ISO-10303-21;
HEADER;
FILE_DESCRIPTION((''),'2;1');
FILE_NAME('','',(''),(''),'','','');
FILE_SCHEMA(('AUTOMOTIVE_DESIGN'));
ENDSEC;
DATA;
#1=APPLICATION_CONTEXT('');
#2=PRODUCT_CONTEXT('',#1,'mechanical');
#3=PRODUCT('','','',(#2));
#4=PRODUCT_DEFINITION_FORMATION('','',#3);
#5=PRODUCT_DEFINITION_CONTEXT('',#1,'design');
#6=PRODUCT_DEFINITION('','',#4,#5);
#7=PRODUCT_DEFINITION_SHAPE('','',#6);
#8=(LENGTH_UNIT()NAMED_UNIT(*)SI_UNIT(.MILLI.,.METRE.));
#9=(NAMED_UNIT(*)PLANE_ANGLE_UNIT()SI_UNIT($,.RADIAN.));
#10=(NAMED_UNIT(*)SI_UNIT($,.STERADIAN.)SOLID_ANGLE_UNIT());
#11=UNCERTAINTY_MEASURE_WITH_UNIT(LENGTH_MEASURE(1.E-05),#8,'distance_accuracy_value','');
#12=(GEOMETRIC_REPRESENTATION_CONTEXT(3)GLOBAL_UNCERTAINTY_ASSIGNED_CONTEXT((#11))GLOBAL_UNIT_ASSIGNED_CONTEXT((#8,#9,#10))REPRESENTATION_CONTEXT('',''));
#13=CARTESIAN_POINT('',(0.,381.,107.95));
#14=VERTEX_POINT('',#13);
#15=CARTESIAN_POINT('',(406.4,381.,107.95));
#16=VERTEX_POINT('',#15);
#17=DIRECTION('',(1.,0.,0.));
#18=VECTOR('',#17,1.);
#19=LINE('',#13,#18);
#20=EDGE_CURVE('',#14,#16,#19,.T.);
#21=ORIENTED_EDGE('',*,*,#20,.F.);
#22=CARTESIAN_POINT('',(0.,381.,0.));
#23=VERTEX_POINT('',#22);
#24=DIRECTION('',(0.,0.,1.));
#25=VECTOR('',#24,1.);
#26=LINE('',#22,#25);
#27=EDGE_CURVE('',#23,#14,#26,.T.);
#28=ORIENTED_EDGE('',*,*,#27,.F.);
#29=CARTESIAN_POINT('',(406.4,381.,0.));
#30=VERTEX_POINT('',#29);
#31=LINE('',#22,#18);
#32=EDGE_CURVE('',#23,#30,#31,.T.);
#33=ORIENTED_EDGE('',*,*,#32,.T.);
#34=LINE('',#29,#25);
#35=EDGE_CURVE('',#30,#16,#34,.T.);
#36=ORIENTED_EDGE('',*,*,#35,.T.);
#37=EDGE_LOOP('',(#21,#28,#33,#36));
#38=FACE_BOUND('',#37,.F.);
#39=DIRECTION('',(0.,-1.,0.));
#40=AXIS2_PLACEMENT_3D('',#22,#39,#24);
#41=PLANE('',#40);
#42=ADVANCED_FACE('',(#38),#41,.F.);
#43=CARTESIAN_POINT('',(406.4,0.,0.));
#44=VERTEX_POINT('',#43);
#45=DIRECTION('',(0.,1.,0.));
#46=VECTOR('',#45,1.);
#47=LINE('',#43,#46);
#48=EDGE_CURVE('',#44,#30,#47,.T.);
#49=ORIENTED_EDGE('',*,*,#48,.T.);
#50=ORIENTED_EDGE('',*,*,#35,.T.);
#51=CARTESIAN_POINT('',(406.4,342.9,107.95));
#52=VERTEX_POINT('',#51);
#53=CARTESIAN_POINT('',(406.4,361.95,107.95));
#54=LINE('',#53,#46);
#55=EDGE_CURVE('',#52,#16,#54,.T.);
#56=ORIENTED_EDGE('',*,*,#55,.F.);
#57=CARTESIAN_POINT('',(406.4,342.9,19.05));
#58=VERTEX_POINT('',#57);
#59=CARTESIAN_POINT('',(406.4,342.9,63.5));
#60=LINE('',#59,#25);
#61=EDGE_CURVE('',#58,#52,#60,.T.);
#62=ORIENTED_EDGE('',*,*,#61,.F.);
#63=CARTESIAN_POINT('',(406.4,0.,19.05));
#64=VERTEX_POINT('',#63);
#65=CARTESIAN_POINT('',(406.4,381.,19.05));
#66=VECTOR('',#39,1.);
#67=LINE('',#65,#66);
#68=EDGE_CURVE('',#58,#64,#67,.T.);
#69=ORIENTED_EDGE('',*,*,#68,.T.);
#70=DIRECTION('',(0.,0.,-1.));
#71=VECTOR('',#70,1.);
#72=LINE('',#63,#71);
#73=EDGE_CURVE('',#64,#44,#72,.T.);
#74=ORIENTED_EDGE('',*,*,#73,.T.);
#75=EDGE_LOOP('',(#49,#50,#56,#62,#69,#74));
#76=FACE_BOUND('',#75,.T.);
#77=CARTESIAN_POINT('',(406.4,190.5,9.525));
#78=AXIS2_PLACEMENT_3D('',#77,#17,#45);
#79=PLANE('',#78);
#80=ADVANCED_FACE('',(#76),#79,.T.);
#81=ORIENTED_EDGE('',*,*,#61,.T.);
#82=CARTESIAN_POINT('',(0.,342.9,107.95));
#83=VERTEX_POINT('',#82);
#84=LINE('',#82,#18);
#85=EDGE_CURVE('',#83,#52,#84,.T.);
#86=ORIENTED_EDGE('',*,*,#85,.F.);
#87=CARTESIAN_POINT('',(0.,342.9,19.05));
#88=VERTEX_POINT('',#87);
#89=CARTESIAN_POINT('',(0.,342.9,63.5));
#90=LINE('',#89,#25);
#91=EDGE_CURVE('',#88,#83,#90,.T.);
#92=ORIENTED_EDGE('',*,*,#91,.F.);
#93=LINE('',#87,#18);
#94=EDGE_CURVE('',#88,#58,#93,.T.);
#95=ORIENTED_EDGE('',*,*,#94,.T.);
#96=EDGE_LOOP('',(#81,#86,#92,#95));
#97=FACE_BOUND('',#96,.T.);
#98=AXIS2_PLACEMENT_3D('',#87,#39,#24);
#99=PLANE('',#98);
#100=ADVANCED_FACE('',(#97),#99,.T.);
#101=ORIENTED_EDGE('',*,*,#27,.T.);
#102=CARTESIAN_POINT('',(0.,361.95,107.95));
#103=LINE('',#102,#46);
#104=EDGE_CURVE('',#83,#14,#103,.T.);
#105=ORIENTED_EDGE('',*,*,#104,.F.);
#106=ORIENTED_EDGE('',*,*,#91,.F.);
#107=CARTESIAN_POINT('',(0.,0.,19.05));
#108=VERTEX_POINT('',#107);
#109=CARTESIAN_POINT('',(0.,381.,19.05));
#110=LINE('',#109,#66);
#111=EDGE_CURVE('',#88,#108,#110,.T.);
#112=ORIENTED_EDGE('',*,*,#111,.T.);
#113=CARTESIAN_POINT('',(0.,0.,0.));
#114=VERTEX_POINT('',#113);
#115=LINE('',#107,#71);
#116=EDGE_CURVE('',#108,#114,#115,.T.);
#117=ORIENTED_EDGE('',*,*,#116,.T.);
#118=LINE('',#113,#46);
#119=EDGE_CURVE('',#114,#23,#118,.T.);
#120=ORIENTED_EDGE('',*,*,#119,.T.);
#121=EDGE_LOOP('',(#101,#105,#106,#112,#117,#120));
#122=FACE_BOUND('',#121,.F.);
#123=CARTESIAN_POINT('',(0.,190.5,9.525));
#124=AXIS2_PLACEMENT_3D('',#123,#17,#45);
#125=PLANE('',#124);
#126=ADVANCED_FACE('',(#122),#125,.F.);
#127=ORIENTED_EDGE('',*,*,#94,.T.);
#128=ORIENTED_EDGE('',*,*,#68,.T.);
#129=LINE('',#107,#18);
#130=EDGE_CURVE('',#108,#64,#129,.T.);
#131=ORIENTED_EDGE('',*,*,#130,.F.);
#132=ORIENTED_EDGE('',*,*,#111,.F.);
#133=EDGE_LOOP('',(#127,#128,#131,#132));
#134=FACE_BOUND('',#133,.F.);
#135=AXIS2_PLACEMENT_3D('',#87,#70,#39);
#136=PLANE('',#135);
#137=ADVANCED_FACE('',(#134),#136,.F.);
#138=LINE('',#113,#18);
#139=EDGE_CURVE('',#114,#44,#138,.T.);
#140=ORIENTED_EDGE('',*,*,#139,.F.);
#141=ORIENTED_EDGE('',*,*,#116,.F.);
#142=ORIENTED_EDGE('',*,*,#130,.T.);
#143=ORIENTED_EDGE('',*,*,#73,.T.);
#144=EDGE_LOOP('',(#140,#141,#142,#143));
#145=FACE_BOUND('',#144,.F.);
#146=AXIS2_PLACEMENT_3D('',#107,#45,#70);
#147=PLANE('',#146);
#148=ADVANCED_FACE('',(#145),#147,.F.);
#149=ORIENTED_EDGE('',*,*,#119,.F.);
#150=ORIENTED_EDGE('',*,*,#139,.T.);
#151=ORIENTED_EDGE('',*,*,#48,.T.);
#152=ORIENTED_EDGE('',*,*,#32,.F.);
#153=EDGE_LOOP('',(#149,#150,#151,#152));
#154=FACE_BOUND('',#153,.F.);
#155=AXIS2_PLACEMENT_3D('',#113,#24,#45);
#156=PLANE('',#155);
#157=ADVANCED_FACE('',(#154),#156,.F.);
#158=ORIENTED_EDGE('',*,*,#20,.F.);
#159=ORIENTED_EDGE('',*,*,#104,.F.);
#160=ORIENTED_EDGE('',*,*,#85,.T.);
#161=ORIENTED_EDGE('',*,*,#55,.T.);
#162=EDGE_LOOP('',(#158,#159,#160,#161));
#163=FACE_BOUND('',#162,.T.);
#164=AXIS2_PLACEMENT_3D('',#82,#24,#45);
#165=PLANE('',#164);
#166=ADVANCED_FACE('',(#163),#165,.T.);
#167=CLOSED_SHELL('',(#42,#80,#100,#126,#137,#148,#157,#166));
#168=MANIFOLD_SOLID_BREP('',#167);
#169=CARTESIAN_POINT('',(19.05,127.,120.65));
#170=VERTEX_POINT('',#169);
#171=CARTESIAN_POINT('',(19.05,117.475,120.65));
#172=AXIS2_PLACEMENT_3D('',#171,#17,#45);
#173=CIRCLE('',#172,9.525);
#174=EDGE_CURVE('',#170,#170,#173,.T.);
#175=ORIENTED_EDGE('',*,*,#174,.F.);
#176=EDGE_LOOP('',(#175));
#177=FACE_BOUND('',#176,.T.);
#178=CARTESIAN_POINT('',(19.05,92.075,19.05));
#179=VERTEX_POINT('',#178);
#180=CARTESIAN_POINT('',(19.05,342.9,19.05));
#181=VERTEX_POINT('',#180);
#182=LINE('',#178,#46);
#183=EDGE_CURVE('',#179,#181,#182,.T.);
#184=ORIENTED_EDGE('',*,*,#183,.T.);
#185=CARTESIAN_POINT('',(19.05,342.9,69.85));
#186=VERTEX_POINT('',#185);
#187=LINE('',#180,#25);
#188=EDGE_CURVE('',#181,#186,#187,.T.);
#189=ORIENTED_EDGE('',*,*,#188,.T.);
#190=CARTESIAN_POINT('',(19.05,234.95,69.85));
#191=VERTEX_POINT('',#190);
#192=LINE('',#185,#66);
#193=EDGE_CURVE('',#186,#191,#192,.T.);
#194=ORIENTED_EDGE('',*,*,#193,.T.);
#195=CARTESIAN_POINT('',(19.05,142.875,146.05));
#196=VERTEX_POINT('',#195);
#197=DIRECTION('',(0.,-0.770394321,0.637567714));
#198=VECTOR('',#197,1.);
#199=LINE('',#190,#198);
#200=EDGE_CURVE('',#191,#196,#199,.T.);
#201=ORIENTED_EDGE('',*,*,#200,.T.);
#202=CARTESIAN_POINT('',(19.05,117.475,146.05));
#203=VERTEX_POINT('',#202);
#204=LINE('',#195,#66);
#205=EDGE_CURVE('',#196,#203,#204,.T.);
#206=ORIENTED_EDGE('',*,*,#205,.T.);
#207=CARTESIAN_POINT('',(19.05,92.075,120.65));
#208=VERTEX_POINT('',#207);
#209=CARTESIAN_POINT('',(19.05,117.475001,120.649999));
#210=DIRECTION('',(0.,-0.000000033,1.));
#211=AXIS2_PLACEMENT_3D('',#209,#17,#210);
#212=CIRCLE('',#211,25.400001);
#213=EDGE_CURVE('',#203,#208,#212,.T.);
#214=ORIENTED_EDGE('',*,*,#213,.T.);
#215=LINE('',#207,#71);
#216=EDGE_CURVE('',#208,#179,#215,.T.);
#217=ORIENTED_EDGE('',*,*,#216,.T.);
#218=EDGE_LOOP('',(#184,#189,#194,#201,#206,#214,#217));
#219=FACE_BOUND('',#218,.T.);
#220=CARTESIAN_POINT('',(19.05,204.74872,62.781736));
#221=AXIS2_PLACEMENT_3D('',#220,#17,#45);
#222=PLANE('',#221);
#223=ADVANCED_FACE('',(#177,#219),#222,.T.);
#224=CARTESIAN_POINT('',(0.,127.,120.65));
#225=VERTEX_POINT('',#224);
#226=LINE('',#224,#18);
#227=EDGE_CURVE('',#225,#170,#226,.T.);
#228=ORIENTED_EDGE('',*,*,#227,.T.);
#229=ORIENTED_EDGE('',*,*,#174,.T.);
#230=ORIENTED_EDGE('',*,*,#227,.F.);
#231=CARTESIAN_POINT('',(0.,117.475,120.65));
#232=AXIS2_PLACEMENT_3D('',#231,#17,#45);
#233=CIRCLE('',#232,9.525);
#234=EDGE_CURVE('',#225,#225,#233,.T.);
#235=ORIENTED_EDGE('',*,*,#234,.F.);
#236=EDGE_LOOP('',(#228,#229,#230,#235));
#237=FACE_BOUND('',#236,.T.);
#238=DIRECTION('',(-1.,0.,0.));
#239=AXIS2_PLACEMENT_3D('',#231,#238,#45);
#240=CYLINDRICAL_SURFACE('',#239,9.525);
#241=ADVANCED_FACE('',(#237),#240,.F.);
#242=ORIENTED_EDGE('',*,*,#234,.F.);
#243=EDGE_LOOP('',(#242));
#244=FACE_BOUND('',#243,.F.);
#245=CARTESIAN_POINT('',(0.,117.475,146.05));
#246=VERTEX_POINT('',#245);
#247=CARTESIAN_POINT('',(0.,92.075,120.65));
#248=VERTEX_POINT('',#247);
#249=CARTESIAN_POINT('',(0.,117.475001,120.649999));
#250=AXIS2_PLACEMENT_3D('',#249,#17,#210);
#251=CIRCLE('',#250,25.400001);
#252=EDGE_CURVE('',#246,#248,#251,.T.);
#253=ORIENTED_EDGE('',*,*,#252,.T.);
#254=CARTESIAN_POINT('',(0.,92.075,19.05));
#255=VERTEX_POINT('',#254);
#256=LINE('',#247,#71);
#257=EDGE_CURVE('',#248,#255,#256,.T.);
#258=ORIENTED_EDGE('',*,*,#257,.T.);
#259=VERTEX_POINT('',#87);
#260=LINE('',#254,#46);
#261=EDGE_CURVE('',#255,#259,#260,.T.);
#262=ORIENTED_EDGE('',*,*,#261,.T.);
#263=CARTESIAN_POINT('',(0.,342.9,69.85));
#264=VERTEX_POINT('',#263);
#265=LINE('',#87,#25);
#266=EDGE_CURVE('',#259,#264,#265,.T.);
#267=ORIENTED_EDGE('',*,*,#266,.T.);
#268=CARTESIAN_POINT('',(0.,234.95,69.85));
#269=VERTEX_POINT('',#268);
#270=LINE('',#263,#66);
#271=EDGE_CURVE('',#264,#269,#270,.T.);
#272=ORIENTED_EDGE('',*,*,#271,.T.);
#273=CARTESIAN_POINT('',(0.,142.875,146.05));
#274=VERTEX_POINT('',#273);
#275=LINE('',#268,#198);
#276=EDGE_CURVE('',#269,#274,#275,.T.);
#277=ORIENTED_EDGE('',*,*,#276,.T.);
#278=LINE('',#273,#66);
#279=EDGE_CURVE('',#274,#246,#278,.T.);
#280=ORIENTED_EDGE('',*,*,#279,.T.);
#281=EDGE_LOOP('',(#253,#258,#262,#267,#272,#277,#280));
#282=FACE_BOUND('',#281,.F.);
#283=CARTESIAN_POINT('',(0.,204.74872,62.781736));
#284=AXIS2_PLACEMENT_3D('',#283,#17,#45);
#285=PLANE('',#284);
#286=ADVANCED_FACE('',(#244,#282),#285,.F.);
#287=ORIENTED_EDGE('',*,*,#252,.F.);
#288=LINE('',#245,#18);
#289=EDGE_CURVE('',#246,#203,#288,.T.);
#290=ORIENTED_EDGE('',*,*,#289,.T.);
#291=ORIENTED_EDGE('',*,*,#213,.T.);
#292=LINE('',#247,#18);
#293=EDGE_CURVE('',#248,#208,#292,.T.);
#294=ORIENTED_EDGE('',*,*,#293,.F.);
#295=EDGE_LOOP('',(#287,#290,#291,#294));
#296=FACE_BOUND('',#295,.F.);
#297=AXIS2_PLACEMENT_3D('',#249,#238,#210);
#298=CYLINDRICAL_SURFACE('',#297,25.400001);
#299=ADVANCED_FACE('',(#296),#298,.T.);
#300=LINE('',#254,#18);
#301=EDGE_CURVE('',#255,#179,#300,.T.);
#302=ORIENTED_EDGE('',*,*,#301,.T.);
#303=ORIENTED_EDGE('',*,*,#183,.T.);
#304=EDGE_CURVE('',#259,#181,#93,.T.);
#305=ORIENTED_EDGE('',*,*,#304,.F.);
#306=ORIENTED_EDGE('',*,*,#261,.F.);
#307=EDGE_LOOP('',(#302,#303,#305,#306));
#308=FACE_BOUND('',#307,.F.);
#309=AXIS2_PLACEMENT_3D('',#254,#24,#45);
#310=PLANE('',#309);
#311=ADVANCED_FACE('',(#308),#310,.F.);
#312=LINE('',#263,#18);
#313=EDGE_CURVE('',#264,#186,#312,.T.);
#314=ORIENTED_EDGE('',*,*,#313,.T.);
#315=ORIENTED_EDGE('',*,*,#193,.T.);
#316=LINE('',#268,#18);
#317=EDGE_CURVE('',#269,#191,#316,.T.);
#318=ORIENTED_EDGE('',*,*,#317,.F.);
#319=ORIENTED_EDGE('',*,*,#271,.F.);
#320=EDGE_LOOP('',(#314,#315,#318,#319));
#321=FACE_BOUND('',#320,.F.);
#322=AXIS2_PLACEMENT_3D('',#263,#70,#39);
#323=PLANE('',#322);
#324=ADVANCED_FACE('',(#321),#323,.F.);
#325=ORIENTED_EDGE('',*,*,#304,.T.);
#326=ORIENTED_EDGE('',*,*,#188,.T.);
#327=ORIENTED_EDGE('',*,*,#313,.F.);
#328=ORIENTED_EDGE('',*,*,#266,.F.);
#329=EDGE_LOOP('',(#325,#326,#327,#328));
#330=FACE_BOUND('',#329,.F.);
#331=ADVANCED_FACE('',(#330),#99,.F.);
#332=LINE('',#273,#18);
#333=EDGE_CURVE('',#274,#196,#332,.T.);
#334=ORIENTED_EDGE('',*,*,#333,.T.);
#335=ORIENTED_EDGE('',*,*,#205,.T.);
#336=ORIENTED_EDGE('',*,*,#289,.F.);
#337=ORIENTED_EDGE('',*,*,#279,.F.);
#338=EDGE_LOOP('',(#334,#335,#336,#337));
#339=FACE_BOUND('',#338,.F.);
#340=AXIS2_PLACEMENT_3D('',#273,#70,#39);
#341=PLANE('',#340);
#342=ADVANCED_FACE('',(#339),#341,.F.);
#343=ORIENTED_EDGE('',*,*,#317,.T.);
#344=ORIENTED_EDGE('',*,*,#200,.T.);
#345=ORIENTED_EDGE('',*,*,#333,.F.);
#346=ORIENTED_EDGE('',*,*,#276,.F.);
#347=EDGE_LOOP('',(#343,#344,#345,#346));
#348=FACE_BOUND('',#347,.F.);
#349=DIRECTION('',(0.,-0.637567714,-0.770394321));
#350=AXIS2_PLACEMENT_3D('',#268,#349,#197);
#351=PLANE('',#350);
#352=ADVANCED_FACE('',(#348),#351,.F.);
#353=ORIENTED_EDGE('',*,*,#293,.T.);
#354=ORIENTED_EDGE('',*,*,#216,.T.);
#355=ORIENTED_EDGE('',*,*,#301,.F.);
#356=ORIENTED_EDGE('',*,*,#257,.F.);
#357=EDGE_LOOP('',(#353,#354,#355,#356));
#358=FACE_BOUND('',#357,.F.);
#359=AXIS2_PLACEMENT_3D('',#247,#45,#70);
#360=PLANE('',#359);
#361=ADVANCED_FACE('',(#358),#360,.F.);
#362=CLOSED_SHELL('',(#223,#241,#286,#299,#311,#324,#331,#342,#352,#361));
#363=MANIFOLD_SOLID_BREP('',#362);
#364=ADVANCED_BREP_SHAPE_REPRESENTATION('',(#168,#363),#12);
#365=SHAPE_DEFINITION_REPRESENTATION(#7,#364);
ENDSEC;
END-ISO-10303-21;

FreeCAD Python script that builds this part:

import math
import FreeCAD as App
import Part
import Sketcher
Q = App.Units.Quantity

doc = App.newDocument("Part")
body = doc.addObject("PartDesign::Body", "Body")

sketch1 = body.newObject("Sketcher::SketchObject", "Sketch")
sketch1.AttachmentSupport = (doc.getObject("YZ_Plane"), [""])
sketch1.MapMode = "FlatFace"
sketch1.addGeometry([
    Part.LineSegment(App.Vector(0, 19, 0), App.Vector(0, 0, 0)),
    Part.LineSegment(App.Vector(0, 0, 0), App.Vector(381, 0, 0)),
    Part.LineSegment(App.Vector(381, 0, 0), App.Vector(381, 108, 0)),
    Part.LineSegment(App.Vector(381, 108, 0), App.Vector(343, 108, 0)),
    Part.LineSegment(App.Vector(343, 108, 0), App.Vector(343, 19, 0)),
    Part.LineSegment(App.Vector(343, 19, 0), App.Vector(0, 19, 0)),
], False)
sketch1.addConstraint([
    Sketcher.Constraint("Coincident", 0, 2, 1, 1),
    Sketcher.Constraint("Coincident", 1, 2, 2, 1),
    Sketcher.Constraint("Coincident", 2, 2, 3, 1),
    Sketcher.Constraint("Coincident", 3, 2, 4, 1),
    Sketcher.Constraint("Coincident", 4, 2, 5, 1),
    Sketcher.Constraint("Coincident", 5, 2, 0, 1),
    Sketcher.Constraint("Vertical", 0),
    Sketcher.Constraint("Horizontal", 1),
    Sketcher.Constraint("Vertical", 2),
    Sketcher.Constraint("Horizontal", 3),
    Sketcher.Constraint("Vertical", 4),
    Sketcher.Constraint("Horizontal", 5),
    Sketcher.Constraint("Coincident", 0, 2, -1, 1),
    Sketcher.Constraint("DistanceX", 1, 1, 1, 2, Q("15 in")),
    Sketcher.Constraint("DistanceX", 3, 2, 3, 1, Q("1.5 in")),
    Sketcher.Constraint("DistanceY", 4, 2, 4, 1, Q("3.5 in")),
    Sketcher.Constraint("DistanceY", 0, 2, 0, 1, Q("0.75 in")),
])
pad1 = body.newObject("PartDesign::Pad", "Pad")
pad1.Profile = sketch1
pad1.Length = Q("16 in")
body2 = doc.addObject("PartDesign::Body", "Body001")

sketch2 = body2.newObject("Sketcher::SketchObject", "Sketch001")
sketch2.AttachmentSupport = (doc.getObject("YZ_Plane001"), [""])
sketch2.MapMode = "FlatFace"
sketch2.addGeometry([
    Part.ArcOfCircle(Part.Circle(App.Vector(117, 121, 0), App.Vector(0, 0, 1), 25), math.radians(90), math.radians(180)),
    Part.LineSegment(App.Vector(92, 121, 0), App.Vector(92, 19, 0)),
    Part.LineSegment(App.Vector(92, 19, 0), App.Vector(343, 19, 0)),
    Part.LineSegment(App.Vector(343, 19, 0), App.Vector(343, 70, 0)),
    Part.LineSegment(App.Vector(343, 70, 0), App.Vector(235, 70, 0)),
    Part.LineSegment(App.Vector(235, 70, 0), App.Vector(143, 146, 0)),
    Part.LineSegment(App.Vector(143, 146, 0), App.Vector(117, 146, 0)),
    Part.Circle(App.Vector(117, 121, 0), App.Vector(0, 0, 1), 10),
], False)
sketch2.addConstraint([
    Sketcher.Constraint("Tangent", 0, 2, 1, 1),
    Sketcher.Constraint("Coincident", 1, 2, 2, 1),
    Sketcher.Constraint("Coincident", 2, 2, 3, 1),
    Sketcher.Constraint("Coincident", 3, 2, 4, 1),
    Sketcher.Constraint("Coincident", 4, 2, 5, 1),
    Sketcher.Constraint("Coincident", 5, 2, 6, 1),
    Sketcher.Constraint("Tangent", 6, 2, 0, 1),
    Sketcher.Constraint("Vertical", 1),
    Sketcher.Constraint("Horizontal", 2),
    Sketcher.Constraint("Vertical", 3),
    Sketcher.Constraint("Horizontal", 4),
    Sketcher.Constraint("Horizontal", 6),
    Sketcher.Constraint("Coincident", 7, 3, 0, 3),
    Sketcher.Constraint("Radius", 0, Q("1 in")),
    Sketcher.Constraint("Diameter", 7, Q("0.75 in")),
    Sketcher.Constraint("DistanceX", 6, 2, 6, 1, Q("1 in")),
    Sketcher.Constraint("DistanceY", 1, 2, 1, 1, Q("4 in")),
    Sketcher.Constraint("DistanceY", 3, 1, 3, 2, Q("2 in")),
    Sketcher.Constraint("DistanceX", 4, 2, 4, 1, Q("4.25 in")),
    Sketcher.Constraint("DistanceX", -1, 1, 2, 2, Q("13.5 in")),
    Sketcher.Constraint("DistanceX", 2, 1, 2, 2, Q("9.875 in")),
    Sketcher.Constraint("DistanceY", -1, 1, 0, 3, Q("4.75 in")),
])
pad2 = body2.newObject("PartDesign::Pad", "Pad001")
pad2.Profile = sketch2
pad2.Length = Q("0.75 in")

doc.recompute()
